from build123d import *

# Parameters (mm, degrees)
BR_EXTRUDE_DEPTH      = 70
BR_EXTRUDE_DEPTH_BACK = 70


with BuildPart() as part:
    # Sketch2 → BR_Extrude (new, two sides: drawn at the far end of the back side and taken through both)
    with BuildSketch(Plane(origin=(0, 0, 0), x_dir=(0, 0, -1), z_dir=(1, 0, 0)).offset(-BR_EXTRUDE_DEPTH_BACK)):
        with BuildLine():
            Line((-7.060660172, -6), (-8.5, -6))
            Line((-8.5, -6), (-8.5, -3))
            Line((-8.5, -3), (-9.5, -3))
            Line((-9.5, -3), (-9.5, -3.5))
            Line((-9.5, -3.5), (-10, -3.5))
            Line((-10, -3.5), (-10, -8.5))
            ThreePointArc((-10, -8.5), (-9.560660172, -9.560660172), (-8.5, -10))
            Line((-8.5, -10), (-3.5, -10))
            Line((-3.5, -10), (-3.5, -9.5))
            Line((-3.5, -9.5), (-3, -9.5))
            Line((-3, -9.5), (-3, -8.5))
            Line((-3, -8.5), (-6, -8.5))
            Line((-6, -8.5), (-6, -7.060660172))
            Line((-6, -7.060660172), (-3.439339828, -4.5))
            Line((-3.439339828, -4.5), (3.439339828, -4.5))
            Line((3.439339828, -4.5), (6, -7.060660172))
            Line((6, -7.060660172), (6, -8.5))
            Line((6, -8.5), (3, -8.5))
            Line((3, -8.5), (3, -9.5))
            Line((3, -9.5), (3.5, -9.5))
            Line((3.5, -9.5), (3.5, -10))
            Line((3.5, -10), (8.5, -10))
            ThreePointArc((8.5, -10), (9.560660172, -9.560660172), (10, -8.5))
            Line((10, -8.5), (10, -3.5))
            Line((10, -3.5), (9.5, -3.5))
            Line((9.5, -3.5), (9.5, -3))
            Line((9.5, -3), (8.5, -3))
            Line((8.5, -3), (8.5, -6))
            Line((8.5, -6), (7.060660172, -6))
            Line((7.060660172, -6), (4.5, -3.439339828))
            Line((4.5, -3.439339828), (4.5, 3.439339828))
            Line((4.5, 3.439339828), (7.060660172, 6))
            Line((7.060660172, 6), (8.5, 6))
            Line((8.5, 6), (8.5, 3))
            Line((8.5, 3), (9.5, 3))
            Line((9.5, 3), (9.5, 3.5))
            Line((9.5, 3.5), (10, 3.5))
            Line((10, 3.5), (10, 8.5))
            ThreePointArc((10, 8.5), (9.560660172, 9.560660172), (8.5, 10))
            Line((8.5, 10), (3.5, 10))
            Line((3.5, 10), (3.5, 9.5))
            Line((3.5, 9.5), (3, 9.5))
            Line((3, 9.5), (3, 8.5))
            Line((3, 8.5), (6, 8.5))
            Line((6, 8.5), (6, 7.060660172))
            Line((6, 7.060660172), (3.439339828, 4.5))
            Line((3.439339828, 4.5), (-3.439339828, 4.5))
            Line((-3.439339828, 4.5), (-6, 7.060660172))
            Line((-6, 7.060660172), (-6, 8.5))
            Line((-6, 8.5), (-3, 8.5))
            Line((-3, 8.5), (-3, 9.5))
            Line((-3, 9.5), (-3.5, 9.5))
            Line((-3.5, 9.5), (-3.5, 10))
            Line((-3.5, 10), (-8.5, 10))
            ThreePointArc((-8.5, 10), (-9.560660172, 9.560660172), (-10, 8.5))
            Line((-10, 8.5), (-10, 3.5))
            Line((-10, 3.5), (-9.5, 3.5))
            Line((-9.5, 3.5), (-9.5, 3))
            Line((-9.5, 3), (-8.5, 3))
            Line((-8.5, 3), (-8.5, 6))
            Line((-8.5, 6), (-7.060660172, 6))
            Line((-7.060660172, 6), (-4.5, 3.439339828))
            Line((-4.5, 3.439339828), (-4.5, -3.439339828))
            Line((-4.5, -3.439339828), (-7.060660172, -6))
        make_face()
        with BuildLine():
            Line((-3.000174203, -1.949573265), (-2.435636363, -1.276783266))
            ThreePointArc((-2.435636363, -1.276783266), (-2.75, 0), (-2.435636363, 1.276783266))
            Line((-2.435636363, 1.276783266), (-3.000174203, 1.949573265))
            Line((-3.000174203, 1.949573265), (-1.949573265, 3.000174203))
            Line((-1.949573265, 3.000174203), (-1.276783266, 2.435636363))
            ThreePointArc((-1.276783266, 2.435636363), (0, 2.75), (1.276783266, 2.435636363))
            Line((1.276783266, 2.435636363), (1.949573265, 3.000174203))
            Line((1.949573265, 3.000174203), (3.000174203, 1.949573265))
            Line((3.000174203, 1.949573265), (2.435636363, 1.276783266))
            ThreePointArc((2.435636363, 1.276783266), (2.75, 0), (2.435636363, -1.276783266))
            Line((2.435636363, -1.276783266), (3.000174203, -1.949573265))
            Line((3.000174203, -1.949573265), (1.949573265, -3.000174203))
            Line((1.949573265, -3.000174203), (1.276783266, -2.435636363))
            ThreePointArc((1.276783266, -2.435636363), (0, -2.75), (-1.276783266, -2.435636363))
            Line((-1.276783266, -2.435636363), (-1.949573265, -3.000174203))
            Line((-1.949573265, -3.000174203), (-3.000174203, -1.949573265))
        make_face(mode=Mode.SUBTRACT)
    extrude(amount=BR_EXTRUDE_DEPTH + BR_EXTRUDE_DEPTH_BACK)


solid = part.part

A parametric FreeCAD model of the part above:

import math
import FreeCAD as App
import Part
import Sketcher

V = App.Vector
Q = App.Units.Quantity

doc = App.newDocument("Part")
body = doc.addObject("PartDesign::Body", "Body")

sketch1 = body.newObject("Sketcher::SketchObject", "Sketch")
sketch1.AttachmentSupport = (doc.getObject("YZ_Plane"), [""])
sketch1.MapMode = "FlatFace"
sketch1.addGeometry(Part.LineSegment(V(-6, 7.06066, 0), V(-6, 8.5, 0)), False)
sketch1.addGeometry(Part.LineSegment(V(-6, 8.5, 0), V(-3, 8.5, 0)), False)
sketch1.addGeometry(Part.LineSegment(V(-3, 8.5, 0), V(-3, 9.5, 0)), False)
sketch1.addGeometry(Part.LineSegment(V(-3, 9.5, 0), V(-3.5, 9.5, 0)), False)
sketch1.addGeometry(Part.LineSegment(V(-3.5, 9.5, 0), V(-3.5, 10, 0)), False)
sketch1.addGeometry(Part.LineSegment(V(-3.5, 10, 0), V(-8.5, 10, 0)), False)
sketch1.addGeometry(Part.ArcOfCircle(Part.Circle(V(-8.5, 8.5, 0), V(0, 0, 1), 1.5), math.radians(90), math.radians(180)), False)
sketch1.addGeometry(Part.LineSegment(V(-10, 8.5, 0), V(-10, 3.5, 0)), False)
sketch1.addGeometry(Part.LineSegment(V(-10, 3.5, 0), V(-9.5, 3.5, 0)), False)
sketch1.addGeometry(Part.LineSegment(V(-9.5, 3.5, 0), V(-9.5, 3, 0)), False)
sketch1.addGeometry(Part.LineSegment(V(-9.5, 3, 0), V(-8.5, 3, 0)), False)
sketch1.addGeometry(Part.LineSegment(V(-8.5, 3, 0), V(-8.5, 6, 0)), False)
sketch1.addGeometry(Part.LineSegment(V(-8.5, 6, 0), V(-7.06066, 6, 0)), False)
sketch1.addGeometry(Part.LineSegment(V(-7.06066, 6, 0), V(-4.5, 3.43934, 0)), False)
sketch1.addGeometry(Part.LineSegment(V(-4.5, 3.43934, 0), V(-4.5, -3.43934, 0)), False)
sketch1.addGeometry(Part.LineSegment(V(-4.5, -3.43934, 0), V(-7.06066, -6, 0)), False)
sketch1.addGeometry(Part.LineSegment(V(-7.06066, -6, 0), V(-8.5, -6, 0)), False)
sketch1.addGeometry(Part.LineSegment(V(-8.5, -6, 0), V(-8.5, -3, 0)), False)
sketch1.addGeometry(Part.LineSegment(V(-8.5, -3, 0), V(-9.5, -3, 0)), False)
sketch1.addGeometry(Part.LineSegment(V(-9.5, -3, 0), V(-9.5, -3.5, 0)), False)
sketch1.addGeometry(Part.LineSegment(V(-9.5, -3.5, 0), V(-10, -3.5, 0)), False)
sketch1.addGeometry(Part.LineSegment(V(-10, -3.5, 0), V(-10, -8.5, 0)), False)
sketch1.addGeometry(Part.ArcOfCircle(Part.Circle(V(-8.5, -8.5, 0), V(0, 0, 1), 1.5), math.radians(180), math.radians(270)), False)
sketch1.addGeometry(Part.LineSegment(V(-8.5, -10, 0), V(-3.5, -10, 0)), False)
sketch1.addGeometry(Part.LineSegment(V(-3.5, -10, 0), V(-3.5, -9.5, 0)), False)
sketch1.addGeometry(Part.LineSegment(V(-3.5, -9.5, 0), V(-3, -9.5, 0)), False)
sketch1.addGeometry(Part.LineSegment(V(-3, -9.5, 0), V(-3, -8.5, 0)), False)
sketch1.addGeometry(Part.LineSegment(V(-3, -8.5, 0), V(-6, -8.5, 0)), False)
sketch1.addGeometry(Part.LineSegment(V(-6, -8.5, 0), V(-6, -7.06066, 0)), False)
sketch1.addGeometry(Part.LineSegment(V(-6, -7.06066, 0), V(-3.43934, -4.5, 0)), False)
sketch1.addGeometry(Part.LineSegment(V(-3.43934, -4.5, 0), V(3.43934, -4.5, 0)), False)
sketch1.addGeometry(Part.LineSegment(V(3.43934, -4.5, 0), V(6, -7.06066, 0)), False)
sketch1.addGeometry(Part.LineSegment(V(6, -7.06066, 0), V(6, -8.5, 0)), False)
sketch1.addGeometry(Part.LineSegment(V(6, -8.5, 0), V(3, -8.5, 0)), False)
sketch1.addGeometry(Part.LineSegment(V(3, -8.5, 0), V(3, -9.5, 0)), False)
sketch1.addGeometry(Part.LineSegment(V(3, -9.5, 0), V(3.5, -9.5, 0)), False)
sketch1.addGeometry(Part.LineSegment(V(3.5, -9.5, 0), V(3.5, -10, 0)), False)
sketch1.addGeometry(Part.LineSegment(V(3.5, -10, 0), V(8.5, -10, 0)), False)
sketch1.addGeometry(Part.ArcOfCircle(Part.Circle(V(8.5, -8.5, 0), V(0, 0, 1), 1.5), math.radians(-90), math.radians(0)), False)
sketch1.addGeometry(Part.LineSegment(V(10, -8.5, 0), V(10, -3.5, 0)), False)
sketch1.addGeometry(Part.LineSegment(V(10, -3.5, 0), V(9.5, -3.5, 0)), False)
sketch1.addGeometry(Part.LineSegment(V(9.5, -3.5, 0), V(9.5, -3, 0)), False)
sketch1.addGeometry(Part.LineSegment(V(9.5, -3, 0), V(8.5, -3, 0)), False)
sketch1.addGeometry(Part.LineSegment(V(8.5, -3, 0), V(8.5, -6, 0)), False)
sketch1.addGeometry(Part.LineSegment(V(8.5, -6, 0), V(7.06066, -6, 0)), False)
sketch1.addGeometry(Part.LineSegment(V(7.06066, -6, 0), V(4.5, -3.43934, 0)), False)
sketch1.addGeometry(Part.LineSegment(V(4.5, -3.43934, 0), V(4.5, 3.43934, 0)), False)
sketch1.addGeometry(Part.LineSegment(V(4.5, 3.43934, 0), V(7.06066, 6, 0)), False)
sketch1.addGeometry(Part.LineSegment(V(7.06066, 6, 0), V(8.5, 6, 0)), False)
sketch1.addGeometry(Part.LineSegment(V(8.5, 6, 0), V(8.5, 3, 0)), False)
sketch1.addGeometry(Part.LineSegment(V(8.5, 3, 0), V(9.5, 3, 0)), False)
sketch1.addGeometry(Part.LineSegment(V(9.5, 3, 0), V(9.5, 3.5, 0)), False)
sketch1.addGeometry(Part.LineSegment(V(9.5, 3.5, 0), V(10, 3.5, 0)), False)
sketch1.addGeometry(Part.LineSegment(V(10, 3.5, 0), V(10, 8.5, 0)), False)
sketch1.addGeometry(Part.ArcOfCircle(Part.Circle(V(8.5, 8.5, 0), V(0, 0, 1), 1.5), math.radians(0), math.radians(90)), False)
sketch1.addGeometry(Part.LineSegment(V(8.5, 10, 0), V(3.5, 10, 0)), False)
sketch1.addGeometry(Part.LineSegment(V(3.5, 10, 0), V(3.5, 9.5, 0)), False)
sketch1.addGeometry(Part.LineSegment(V(3.5, 9.5, 0), V(3, 9.5, 0)), False)
sketch1.addGeometry(Part.LineSegment(V(3, 9.5, 0), V(3, 8.5, 0)), False)
sketch1.addGeometry(Part.LineSegment(V(3, 8.5, 0), V(6, 8.5, 0)), False)
sketch1.addGeometry(Part.LineSegment(V(6, 8.5, 0), V(6, 7.06066, 0)), False)
sketch1.addGeometry(Part.LineSegment(V(6, 7.06066, 0), V(3.43934, 4.5, 0)), False)
sketch1.addGeometry(Part.LineSegment(V(3.43934, 4.5, 0), V(-3.43934, 4.5, 0)), False)
sketch1.addGeometry(Part.LineSegment(V(-3.43934, 4.5, 0), V(-6, 7.06066, 0)), False)
sketch1.addGeometry(Part.LineSegment(V(-3.000174, 1.949573, 0), V(-1.949573, 3.000174, 0)), False)
sketch1.addGeometry(Part.LineSegment(V(-1.949573, 3.000174, 0), V(-1.276783, 2.435636, 0)), False)
sketch1.addGeometry(Part.ArcOfCircle(Part.Circle(V(0, 0, 0), V(0, 0, 1), 2.75), math.radians(62.336053), math.radians(117.663947)), False)
sketch1.addGeometry(Part.LineSegment(V(1.276783, 2.435636, 0), V(1.949573, 3.000174, 0)), False)
sketch1.addGeometry(Part.LineSegment(V(1.949573, 3.000174, 0), V(3.000174, 1.949573, 0)), False)
sketch1.addGeometry(Part.LineSegment(V(3.000174, 1.949573, 0), V(2.435636, 1.276783, 0)), False)
sketch1.addGeometry(Part.ArcOfCircle(Part.Circle(V(0, 0, 0), V(0, 0, 1), 2.75), math.radians(-27.663947), math.radians(27.663947)), False)
sketch1.addGeometry(Part.LineSegment(V(2.435636, -1.276783, 0), V(3.000174, -1.949573, 0)), False)
sketch1.addGeometry(Part.LineSegment(V(3.000174, -1.949573, 0), V(1.949573, -3.000174, 0)), False)
sketch1.addGeometry(Part.LineSegment(V(1.949573, -3.000174, 0), V(1.276783, -2.435636, 0)), False)
sketch1.addGeometry(Part.ArcOfCircle(Part.Circle(V(0, 0, 0), V(0, 0, 1), 2.75), math.radians(-117.663947), math.radians(-62.336053)), False)
sketch1.addGeometry(Part.LineSegment(V(-1.276783, -2.435636, 0), V(-1.949573, -3.000174, 0)), False)
sketch1.addGeometry(Part.LineSegment(V(-1.949573, -3.000174, 0), V(-3.000174, -1.949573, 0)), False)
sketch1.addGeometry(Part.LineSegment(V(-3.000174, -1.949573, 0), V(-2.435636, -1.276783, 0)), False)
sketch1.addGeometry(Part.ArcOfCircle(Part.Circle(V(0, 0, 0), V(0, 0, 1), 2.75), math.radians(152.336053), math.radians(207.663947)), False)
sketch1.addGeometry(Part.LineSegment(V(-2.435636, 1.276783, 0), V(-3.000174, 1.949573, 0)), False)
sketch1.addConstraint(Sketcher.Constraint("Coincident", 0, 2, 1, 1))
sketch1.addConstraint(Sketcher.Constraint("Coincident", 1, 2, 2, 1))
sketch1.addConstraint(Sketcher.Constraint("Coincident", 2, 2, 3, 1))
sketch1.addConstraint(Sketcher.Constraint("Coincident", 3, 2, 4, 1))
sketch1.addConstraint(Sketcher.Constraint("Coincident", 4, 2, 5, 1))
sketch1.addConstraint(Sketcher.Constraint("Tangent", 5, 2, 6, 1))
sketch1.addConstraint(Sketcher.Constraint("Tangent", 6, 2, 7, 1))
sketch1.addConstraint(Sketcher.Constraint("Coincident", 7, 2, 8, 1))
sketch1.addConstraint(Sketcher.Constraint("Coincident", 8, 2, 9, 1))
sketch1.addConstraint(Sketcher.Constraint("Coincident", 9, 2, 10, 1))
sketch1.addConstraint(Sketcher.Constraint("Coincident", 10, 2, 11, 1))
sketch1.addConstraint(Sketcher.Constraint("Coincident", 11, 2, 12, 1))
sketch1.addConstraint(Sketcher.Constraint("Coincident", 12, 2, 13, 1))
sketch1.addConstraint(Sketcher.Constraint("Coincident", 13, 2, 14, 1))
sketch1.addConstraint(Sketcher.Constraint("Coincident", 14, 2, 15, 1))
sketch1.addConstraint(Sketcher.Constraint("Coincident", 15, 2, 16, 1))
sketch1.addConstraint(Sketcher.Constraint("Coincident", 16, 2, 17, 1))
sketch1.addConstraint(Sketcher.Constraint("Coincident", 17, 2, 18, 1))
sketch1.addConstraint(Sketcher.Constraint("Coincident", 18, 2, 19, 1))
sketch1.addConstraint(Sketcher.Constraint("Coincident", 19, 2, 20, 1))
sketch1.addConstraint(Sketcher.Constraint("Coincident", 20, 2, 21, 1))
sketch1.addConstraint(Sketcher.Constraint("Tangent", 21, 2, 22, 1))
sketch1.addConstraint(Sketcher.Constraint("Tangent", 22, 2, 23, 1))
sketch1.addConstraint(Sketcher.Constraint("Coincident", 23, 2, 24, 1))
sketch1.addConstraint(Sketcher.Constraint("Coincident", 24, 2, 25, 1))
sketch1.addConstraint(Sketcher.Constraint("Coincident", 25, 2, 26, 1))
sketch1.addConstraint(Sketcher.Constraint("Coincident", 26, 2, 27, 1))
sketch1.addConstraint(Sketcher.Constraint("Coincident", 27, 2, 28, 1))
sketch1.addConstraint(Sketcher.Constraint("Coincident", 28, 2, 29, 1))
sketch1.addConstraint(Sketcher.Constraint("Coincident", 29, 2, 30, 1))
sketch1.addConstraint(Sketcher.Constraint("Coincident", 30, 2, 31, 1))
sketch1.addConstraint(Sketcher.Constraint("Coincident", 31, 2, 32, 1))
sketch1.addConstraint(Sketcher.Constraint("Coincident", 32, 2, 33, 1))
sketch1.addConstraint(Sketcher.Constraint("Coincident", 33, 2, 34, 1))
sketch1.addConstraint(Sketcher.Constraint("Coincident", 34, 2, 35, 1))
sketch1.addConstraint(Sketcher.Constraint("Coincident", 35, 2, 36, 1))
sketch1.addConstraint(Sketcher.Constraint("Coincident", 36, 2, 37, 1))
sketch1.addConstraint(Sketcher.Constraint("Tangent", 37, 2, 38, 1))
sketch1.addConstraint(Sketcher.Constraint("Tangent", 38, 2, 39, 1))
sketch1.addConstraint(Sketcher.Constraint("Coincident", 39, 2, 40, 1))
sketch1.addConstraint(Sketcher.Constraint("Coincident", 40, 2, 41, 1))
sketch1.addConstraint(Sketcher.Constraint("Coincident", 41, 2, 42, 1))
sketch1.addConstraint(Sketcher.Constraint("Coincident", 42, 2, 43, 1))
sketch1.addConstraint(Sketcher.Constraint("Coincident", 43, 2, 44, 1))
sketch1.addConstraint(Sketcher.Constraint("Coincident", 44, 2, 45, 1))
sketch1.addConstraint(Sketcher.Constraint("Coincident", 45, 2, 46, 1))
sketch1.addConstraint(Sketcher.Constraint("Coincident", 46, 2, 47, 1))
sketch1.addConstraint(Sketcher.Constraint("Coincident", 47, 2, 48, 1))
sketch1.addConstraint(Sketcher.Constraint("Coincident", 48, 2, 49, 1))
sketch1.addConstraint(Sketcher.Constraint("Coincident", 49, 2, 50, 1))
sketch1.addConstraint(Sketcher.Constraint("Coincident", 50, 2, 51, 1))
sketch1.addConstraint(Sketcher.Constraint("Coincident", 51, 2, 52, 1))
sketch1.addConstraint(Sketcher.Constraint("Coincident", 52, 2, 53, 1))
sketch1.addConstraint(Sketcher.Constraint("Tangent", 53, 2, 54, 1))
sketch1.addConstraint(Sketcher.Constraint("Tangent", 54, 2, 55, 1))
sketch1.addConstraint(Sketcher.Constraint("Coincident", 55, 2, 56, 1))
sketch1.addConstraint(Sketcher.Constraint("Coincident", 56, 2, 57, 1))
sketch1.addConstraint(Sketcher.Constraint("Coincident", 57, 2, 58, 1))
sketch1.addConstraint(Sketcher.Constraint("Coincident", 58, 2, 59, 1))
sketch1.addConstraint(Sketcher.Constraint("Coincident", 59, 2, 60, 1))
sketch1.addConstraint(Sketcher.Constraint("Coincident", 60, 2, 61, 1))
sketch1.addConstraint(Sketcher.Constraint("Coincident", 61, 2, 62, 1))
sketch1.addConstraint(Sketcher.Constraint("Coincident", 62, 2, 63, 1))
sketch1.addConstraint(Sketcher.Constraint("Coincident", 63, 2, 0, 1))
sketch1.addConstraint(Sketcher.Constraint("Coincident", 64, 2, 65, 1))
sketch1.addConstraint(Sketcher.Constraint("Coincident", 65, 2, 66, 2))
sketch1.addConstraint(Sketcher.Constraint("Coincident", 66, 1, 67, 1))
sketch1.addConstraint(Sketcher.Constraint("Coincident", 67, 2, 68, 1))
sketch1.addConstraint(Sketcher.Constraint("Coincident", 68, 2, 69, 1))
sketch1.addConstraint(Sketcher.Constraint("Coincident", 69, 2, 70, 2))
sketch1.addConstraint(Sketcher.Constraint("Coincident", 70, 1, 71, 1))
sketch1.addConstraint(Sketcher.Constraint("Coincident", 71, 2, 72, 1))
sketch1.addConstraint(Sketcher.Constraint("Coincident", 72, 2, 73, 1))
sketch1.addConstraint(Sketcher.Constraint("Coincident", 73, 2, 74, 2))
sketch1.addConstraint(Sketcher.Constraint("Coincident", 74, 1, 75, 1))
sketch1.addConstraint(Sketcher.Constraint("Coincident", 75, 2, 76, 1))
sketch1.addConstraint(Sketcher.Constraint("Coincident", 76, 2, 77, 1))
sketch1.addConstraint(Sketcher.Constraint("Coincident", 77, 2, 78, 2))
sketch1.addConstraint(Sketcher.Constraint("Coincident", 78, 1, 79, 1))
sketch1.addConstraint(Sketcher.Constraint("Coincident", 79, 2, 64, 1))
sketch1.addConstraint(Sketcher.Constraint("Vertical", 0))
sketch1.addConstraint(Sketcher.Constraint("Horizontal", 1))
sketch1.addConstraint(Sketcher.Constraint("Vertical", 2))
sketch1.addConstraint(Sketcher.Constraint("Horizontal", 3))
sketch1.addConstraint(Sketcher.Constraint("Vertical", 4))
sketch1.addConstraint(Sketcher.Constraint("Horizontal", 5))
sketch1.addConstraint(Sketcher.Constraint("Vertical", 7))
sketch1.addConstraint(Sketcher.Constraint("Horizontal", 8))
sketch1.addConstraint(Sketcher.Constraint("Vertical", 9))
sketch1.addConstraint(Sketcher.Constraint("Horizontal", 10))
sketch1.addConstraint(Sketcher.Constraint("Vertical", 11))
sketch1.addConstraint(Sketcher.Constraint("Horizontal", 12))
sketch1.addConstraint(Sketcher.Constraint("Vertical", 14))
sketch1.addConstraint(Sketcher.Constraint("Horizontal", 16))
sketch1.addConstraint(Sketcher.Constraint("Vertical", 17))
sketch1.addConstraint(Sketcher.Constraint("Horizontal", 18))
sketch1.addConstraint(Sketcher.Constraint("Vertical", 19))
sketch1.addConstraint(Sketcher.Constraint("Horizontal", 20))
sketch1.addConstraint(Sketcher.Constraint("Vertical", 21))
sketch1.addConstraint(Sketcher.Constraint("Horizontal", 23))
sketch1.addConstraint(Sketcher.Constraint("Vertical", 24))
sketch1.addConstraint(Sketcher.Constraint("Horizontal", 25))
sketch1.addConstraint(Sketcher.Constraint("Vertical", 26))
sketch1.addConstraint(Sketcher.Constraint("Horizontal", 27))
sketch1.addConstraint(Sketcher.Constraint("Vertical", 28))
sketch1.addConstraint(Sketcher.Constraint("Horizontal", 30))
sketch1.addConstraint(Sketcher.Constraint("Vertical", 32))
sketch1.addConstraint(Sketcher.Constraint("Horizontal", 33))
sketch1.addConstraint(Sketcher.Constraint("Vertical", 34))
sketch1.addConstraint(Sketcher.Constraint("Horizontal", 35))
sketch1.addConstraint(Sketcher.Constraint("Vertical", 36))
sketch1.addConstraint(Sketcher.Constraint("Horizontal", 37))
sketch1.addConstraint(Sketcher.Constraint("Vertical", 39))
sketch1.addConstraint(Sketcher.Constraint("Horizontal", 40))
sketch1.addConstraint(Sketcher.Constraint("Vertical", 41))
sketch1.addConstraint(Sketcher.Constraint("Horizontal", 42))
sketch1.addConstraint(Sketcher.Constraint("Vertical", 43))
sketch1.addConstraint(Sketcher.Constraint("Horizontal", 44))
sketch1.addConstraint(Sketcher.Constraint("Vertical", 46))
sketch1.addConstraint(Sketcher.Constraint("Horizontal", 48))
sketch1.addConstraint(Sketcher.Constraint("Vertical", 49))
sketch1.addConstraint(Sketcher.Constraint("Horizontal", 50))
sketch1.addConstraint(Sketcher.Constraint("Vertical", 51))
sketch1.addConstraint(Sketcher.Constraint("Horizontal", 52))
sketch1.addConstraint(Sketcher.Constraint("Vertical", 53))
sketch1.addConstraint(Sketcher.Constraint("Horizontal", 55))
sketch1.addConstraint(Sketcher.Constraint("Vertical", 56))
sketch1.addConstraint(Sketcher.Constraint("Horizontal", 57))
sketch1.addConstraint(Sketcher.Constraint("Vertical", 58))
sketch1.addConstraint(Sketcher.Constraint("Horizontal", 59))
sketch1.addConstraint(Sketcher.Constraint("Vertical", 60))
sketch1.addConstraint(Sketcher.Constraint("Horizontal", 62))
sketch1.addConstraint(Sketcher.Constraint("Coincident", 66, 3, -1, 1))
sketch1.addConstraint(Sketcher.Constraint("Coincident", 70, 3, -1, 1))
sketch1.addConstraint(Sketcher.Constraint("Coincident", 74, 3, -1, 1))
sketch1.addConstraint(Sketcher.Constraint("Coincident", 78, 3, -1, 1))
sketch1.addConstraint(Sketcher.Constraint("Equal", 6, 22))
sketch1.addConstraint(Sketcher.Constraint("Equal", 22, 38))
sketch1.addConstraint(Sketcher.Constraint("Equal", 38, 54))
sketch1.addConstraint(Sketcher.Constraint("Equal", 66, 70))
sketch1.addConstraint(Sketcher.Constraint("Equal", 70, 74))
sketch1.addConstraint(Sketcher.Constraint("Equal", 74, 78))
sketch1.addConstraint(Sketcher.Constraint("Symmetric", 6, 3, 38, 3, -1, 1))
sketch1.addConstraint(Sketcher.Constraint("Symmetric", 22, 3, 54, 3, -1, 1))
sketch1.addConstraint(Sketcher.Constraint("Symmetric", 0, 2, 32, 2, -1, 1))
sketch1.addConstraint(Sketcher.Constraint("Symmetric", 2, 2, 34, 2, -1, 1))
sketch1.addConstraint(Sketcher.Constraint("Symmetric", 8, 2, 40, 2, -1, 1))
sketch1.addConstraint(Sketcher.Constraint("Symmetric", 10, 2, 42, 2, -1, 1))
sketch1.addConstraint(Sketcher.Constraint("Symmetric", 12, 2, 44, 2, -1, 1))
sketch1.addConstraint(Sketcher.Constraint("Symmetric", 13, 2, 45, 2, -1, 1))
sketch1.addConstraint(Sketcher.Constraint("Symmetric", 15, 2, 47, 2, -1, 1))
sketch1.addConstraint(Sketcher.Constraint("Symmetric", 17, 2, 49, 2, -1, 1))
sketch1.addConstraint(Sketcher.Constraint("Symmetric", 19, 2, 51, 2, -1, 1))
sketch1.addConstraint(Sketcher.Constraint("Symmetric", 24, 2, 56, 2, -1, 1))
sketch1.addConstraint(Sketcher.Constraint("Symmetric", 26, 2, 58, 2, -1, 1))
sketch1.addConstraint(Sketcher.Constraint("Symmetric", 28, 2, 60, 2, -1, 1))
sketch1.addConstraint(Sketcher.Constraint("Symmetric", 29, 2, 61, 2, -1, 1))
sketch1.addConstraint(Sketcher.Constraint("Symmetric", 64, 2, 72, 2, -1, 1))
sketch1.addConstraint(Sketcher.Constraint("Symmetric", 67, 2, 75, 2, -1, 1))
sketch1.addConstraint(Sketcher.Constraint("Symmetric", 68, 2, 76, 2, -1, 1))
sketch1.addConstraint(Sketcher.Constraint("Symmetric", 71, 2, 79, 2, -1, 1))
sketch1.addConstraint(Sketcher.Constraint("Symmetric", 22, 3, 38, 3, -2))
sketch1.addConstraint(Sketcher.Constraint("Symmetric", 28, 2, 31, 2, -2))
sketch1.addConstraint(Sketcher.Constraint("Symmetric", 26, 2, 33, 2, -2))
sketch1.addConstraint(Sketcher.Constraint("Symmetric", 24, 2, 35, 2, -2))
sketch1.addConstraint(Sketcher.Constraint("Symmetric", 19, 2, 40, 2, -2))
sketch1.addConstraint(Sketcher.Constraint("Symmetric", 17, 2, 42, 2, -2))
sketch1.addConstraint(Sketcher.Constraint("Symmetric", 15, 2, 44, 2, -2))
sketch1.addConstraint(Sketcher.Constraint("Symmetric", 64, 2, 67, 2, -2))
sketch1.addConstraint(Sketcher.Constraint("Symmetric", 71, 2, 76, 2, -2))
sketch1.addConstraint(Sketcher.Constraint("Perpendicular", 13, 15))
sketch1.addConstraint(Sketcher.Constraint("Parallel", 15, 29))
sketch1.addConstraint(Sketcher.Constraint("Perpendicular", 29, 31))
sketch1.addConstraint(Sketcher.Constraint("Perpendicular", 45, 47))
sketch1.addConstraint(Sketcher.Constraint("Perpendicular", 61, 63))
sketch1.addConstraint(Sketcher.Constraint("Perpendicular", 63, 64))
sketch1.addConstraint(Sketcher.Constraint("Perpendicular", 64, 68))
sketch1.addConstraint(Sketcher.Constraint("Perpendicular", 65, 69))
sketch1.addConstraint(Sketcher.Constraint("Perpendicular", 67, 71))
sketch1.addConstraint(Sketcher.Constraint("Perpendicular", 69, 73))
sketch1.addConstraint(Sketcher.Constraint("Perpendicular", 71, 75))
sketch1.addConstraint(Sketcher.Constraint("Perpendicular", 73, 77))
sketch1.addConstraint(Sketcher.Constraint("Perpendicular", 75, 79))
sketch1.addConstraint(Sketcher.Constraint("Horizontal", 54, 3, 0, 2))
sketch1.addConstraint(Sketcher.Constraint("Horizontal", 60, 2, 63, 2))
sketch1.addConstraint(Sketcher.Constraint("Horizontal", 65, 2, 66, 1))
sketch1.addConstraint(Sketcher.Constraint("Vertical", 5, 2, 10, 2))
sketch1.addConstraint(Sketcher.Constraint("Vertical", 4, 2, 23, 2))
sketch1.addConstraint(Sketcher.Constraint("Equal", 3, 8))
sketch1.addConstraint(Sketcher.Constraint("Equal", 48, 0))
sketch1.addConstraint(Sketcher.Constraint("Equal", 50, 2))
sketch1.addConstraint(Sketcher.Constraint("Equal", 55, 7))
sketch1.addConstraint(Sketcher.Constraint("Equal", 4, 9))
sketch1.addConstraint(Sketcher.Constraint("Equal", 59, 11))
sketch1.addConstraint(Sketcher.Constraint("Equal", 62, 14))
sketch1.addConstraint(Sketcher.Constraint("Equal", 15, 29))
sketch1.addConstraint(Sketcher.Constraint("Equal", 67, 69))
sketch1.addConstraint(Sketcher.Constraint("Radius", 6, Q("1.5 mm")))
sketch1.addConstraint(Sketcher.Constraint("DistanceX", 1, 1, 1, 2, Q("3 mm")))
sketch1.addConstraint(Sketcher.Constraint("DistanceX", 5, 2, 5, 1, Q("5 mm")))
sketch1.addConstraint(Sketcher.Constraint("DistanceX", 10, 1, 10, 2, Q("1 mm")))
sketch1.addConstraint(Sketcher.Constraint("Angle", 65, Q("-40 deg")))
sketch1.addConstraint(Sketcher.Constraint("Radius", 66, Q("2.75 mm")))
sketch1.addConstraint(Sketcher.Constraint("DistanceX", 0, 2, -1, 1, Q("6 mm")))
sketch1.addConstraint(Sketcher.Constraint("DistanceX", 13, 2, -1, 1, Q("4.5 mm")))
sketch1.addConstraint(Sketcher.Constraint("DistanceX", 12, 1, 12, 2, Q("1.43934 mm")))
sketch1.addConstraint(Sketcher.Constraint("Distance", 64, Q("1.485774 mm")))
sketch1.addConstraint(Sketcher.Constraint("Distance", 65, Q("0.878265 mm")))
pad1 = body.newObject("PartDesign::Pad", "Pad")
pad1.Profile = sketch1
pad1.Type = "TwoLengths"
pad1.Length = 70
pad1.Length2 = 70

doc.recompute()
